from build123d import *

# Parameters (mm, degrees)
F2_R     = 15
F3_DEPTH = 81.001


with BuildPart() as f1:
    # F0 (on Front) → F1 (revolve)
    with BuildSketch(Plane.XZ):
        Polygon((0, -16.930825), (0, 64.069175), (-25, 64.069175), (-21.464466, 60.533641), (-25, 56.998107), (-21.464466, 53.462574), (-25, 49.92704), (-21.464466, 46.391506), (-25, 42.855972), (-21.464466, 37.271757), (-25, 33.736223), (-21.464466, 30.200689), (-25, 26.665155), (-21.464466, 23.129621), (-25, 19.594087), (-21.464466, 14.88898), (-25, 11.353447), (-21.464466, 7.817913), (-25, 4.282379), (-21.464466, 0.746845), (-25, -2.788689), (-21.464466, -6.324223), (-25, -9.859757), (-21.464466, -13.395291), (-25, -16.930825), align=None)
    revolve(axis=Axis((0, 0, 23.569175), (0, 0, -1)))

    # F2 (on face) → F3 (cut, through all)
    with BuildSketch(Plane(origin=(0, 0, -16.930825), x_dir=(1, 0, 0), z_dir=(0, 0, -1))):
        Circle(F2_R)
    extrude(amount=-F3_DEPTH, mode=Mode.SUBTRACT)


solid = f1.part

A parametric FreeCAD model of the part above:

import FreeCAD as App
import Part
import Sketcher


def add_polygon(sketch, points):
    """Adds a closed chain of lines whose ends are joined by coincident constraints."""
    first, n = sketch.GeometryCount, len(points)
    for a, b in zip(points, points[1:] + points[:1]):
        sketch.addGeometry(Part.LineSegment(App.Vector(*a, 0), App.Vector(*b, 0)), False)
    for i in range(n):
        sketch.addConstraint(Sketcher.Constraint("Coincident", first + i, 2, first + (i + 1) % n, 1))

doc = App.newDocument("Part")
params = doc.addObject("Spreadsheet::Sheet", "Params")
for row, (alias, value) in enumerate([
    ("sketch1_width", "25 mm"),
    ("sketch1_height", "81 mm"),
    ("sketch1_length", "5 mm"),
    ("revolution_angle", "360 deg"),
    ("sketch2_diameter", "30 mm"),
], start=1):
    params.set(f"A{row}", alias)
    params.set(f"B{row}", "=" + value)
    params.setAlias(f"B{row}", alias)

body = doc.addObject("PartDesign::Body", "Body")

# Sketch on XZ plane
sketch1 = doc.addObject("Sketcher::SketchObject", "Sketch")
body.addObject(sketch1)
sketch1.AttachmentSupport = (doc.XZ_Plane, [""])
sketch1.MapMode = "FlatFace"
add_polygon(sketch1, [(0, -16.9), (0, 64.1), (-25, 64.1), (-21.5, 60.5), (-25, 57), (-21.5, 53.5), (-25, 49.9), (-21.5, 46.4), (-25, 42.9), (-21.5, 37.3), (-25, 33.7), (-21.5, 30.2), (-25, 26.7), (-21.5, 23.1), (-25, 19.6), (-21.5, 14.9), (-25, 11.4), (-21.5, 7.8), (-25, 4.3), (-21.5, 0.7), (-25, -2.8), (-21.5, -6.3), (-25, -9.9), (-21.5, -13.4), (-25, -16.9)])  # lines 0-24
sketch1.addConstraint([
    Sketcher.Constraint("Vertical", 0),
    Sketcher.Constraint("Horizontal", 1),
    Sketcher.Constraint("Horizontal", 24),
    Sketcher.Constraint("PointOnObject", 0, 2, -2),
    Sketcher.Constraint("Perpendicular", 2, 3),
    Sketcher.Constraint("Perpendicular", 3, 4),
    Sketcher.Constraint("Perpendicular", 4, 5),
    Sketcher.Constraint("Perpendicular", 5, 6),
    Sketcher.Constraint("Perpendicular", 6, 7),
    Sketcher.Constraint("Parallel", 7, 9),
    Sketcher.Constraint("Perpendicular", 9, 10),
    Sketcher.Constraint("Perpendicular", 10, 11),
    Sketcher.Constraint("Perpendicular", 11, 12),
    Sketcher.Constraint("Perpendicular", 12, 13),
    Sketcher.Constraint("Parallel", 13, 15),
    Sketcher.Constraint("Perpendicular", 15, 16),
    Sketcher.Constraint("Perpendicular", 16, 17),
    Sketcher.Constraint("Perpendicular", 17, 18),
    Sketcher.Constraint("Perpendicular", 18, 19),
    Sketcher.Constraint("Perpendicular", 19, 20),
    Sketcher.Constraint("Perpendicular", 20, 21),
    Sketcher.Constraint("Perpendicular", 21, 22),
    Sketcher.Constraint("Perpendicular", 22, 23),
    Sketcher.Constraint("Vertical", 1, 2, 3, 2),
    Sketcher.Constraint("Vertical", 2, 2, 4, 2),
    Sketcher.Constraint("Vertical", 3, 2, 5, 2),
    Sketcher.Constraint("Vertical", 4, 2, 6, 2),
    Sketcher.Constraint("Vertical", 5, 2, 7, 2),
    Sketcher.Constraint("Vertical", 6, 2, 8, 2),
    Sketcher.Constraint("Vertical", 7, 2, 9, 2),
    Sketcher.Constraint("Vertical", 8, 2, 10, 2),
    Sketcher.Constraint("Vertical", 9, 2, 11, 2),
    Sketcher.Constraint("Vertical", 10, 2, 12, 2),
    Sketcher.Constraint("Vertical", 11, 2, 13, 2),
    Sketcher.Constraint("Vertical", 12, 2, 14, 2),
    Sketcher.Constraint("Vertical", 13, 2, 15, 2),
    Sketcher.Constraint("Vertical", 14, 2, 16, 2),
    Sketcher.Constraint("Vertical", 15, 2, 17, 2),
    Sketcher.Constraint("Vertical", 16, 2, 18, 2),
    Sketcher.Constraint("Vertical", 17, 2, 19, 2),
    Sketcher.Constraint("Vertical", 18, 2, 20, 2),
    Sketcher.Constraint("Vertical", 19, 2, 21, 2),
    Sketcher.Constraint("Vertical", 20, 2, 22, 2),
    Sketcher.Constraint("Vertical", 21, 2, 23, 2),
    Sketcher.Constraint("Equal", 2, 3),
    Sketcher.Constraint("DistanceX", 1, 2, 1, 1, 25.0),
    Sketcher.Constraint("DistanceY", 0, 1, 0, 2, 81.0),
    Sketcher.Constraint("Distance", 2, 5.0),
    Sketcher.Constraint("Distance", 14, 5.885408),
    Sketcher.Constraint("DistanceY", -1, 1, 2, 2, 60.533641),
])
sketch1.setExpression("Constraints[70]", "Params.sketch1_width")
sketch1.setExpression("Constraints[71]", "Params.sketch1_height")
sketch1.setExpression("Constraints[72]", "Params.sketch1_length")
revolution = doc.addObject("PartDesign::Revolution", "Revolution")
body.addObject(revolution)
revolution.Profile = sketch1
revolution.ReferenceAxis = (sketch1, ["V_Axis"])
revolution.setExpression("Angle", "Params.revolution_angle")

# Sketch on XY plane
sketch2 = doc.addObject("Sketcher::SketchObject", "Sketch001")
body.addObject(sketch2)
sketch2.AttachmentSupport = (doc.XY_Plane, [""])
sketch2.MapMode = "FlatFace"
sketch2.AttachmentOffset = App.Placement(App.Vector(0, 0, -16.930825), App.Rotation())
sketch2.addGeometry(Part.Circle(App.Vector(0, 0, 0), App.Vector(0, 0, 1), 15), False)
sketch2.addConstraint([
    Sketcher.Constraint("Coincident", 0, 3, -1, 1),
    Sketcher.Constraint("Diameter", 0, 30.0),
])
sketch2.setExpression("Constraints[1]", "Params.sketch2_diameter")
pocket1 = doc.addObject("PartDesign::Pocket", "Pocket")
body.addObject(pocket1)
pocket1.Profile = sketch2
pocket1.Type = "ThroughAll"
pocket1.Reversed = True

doc.recompute()
